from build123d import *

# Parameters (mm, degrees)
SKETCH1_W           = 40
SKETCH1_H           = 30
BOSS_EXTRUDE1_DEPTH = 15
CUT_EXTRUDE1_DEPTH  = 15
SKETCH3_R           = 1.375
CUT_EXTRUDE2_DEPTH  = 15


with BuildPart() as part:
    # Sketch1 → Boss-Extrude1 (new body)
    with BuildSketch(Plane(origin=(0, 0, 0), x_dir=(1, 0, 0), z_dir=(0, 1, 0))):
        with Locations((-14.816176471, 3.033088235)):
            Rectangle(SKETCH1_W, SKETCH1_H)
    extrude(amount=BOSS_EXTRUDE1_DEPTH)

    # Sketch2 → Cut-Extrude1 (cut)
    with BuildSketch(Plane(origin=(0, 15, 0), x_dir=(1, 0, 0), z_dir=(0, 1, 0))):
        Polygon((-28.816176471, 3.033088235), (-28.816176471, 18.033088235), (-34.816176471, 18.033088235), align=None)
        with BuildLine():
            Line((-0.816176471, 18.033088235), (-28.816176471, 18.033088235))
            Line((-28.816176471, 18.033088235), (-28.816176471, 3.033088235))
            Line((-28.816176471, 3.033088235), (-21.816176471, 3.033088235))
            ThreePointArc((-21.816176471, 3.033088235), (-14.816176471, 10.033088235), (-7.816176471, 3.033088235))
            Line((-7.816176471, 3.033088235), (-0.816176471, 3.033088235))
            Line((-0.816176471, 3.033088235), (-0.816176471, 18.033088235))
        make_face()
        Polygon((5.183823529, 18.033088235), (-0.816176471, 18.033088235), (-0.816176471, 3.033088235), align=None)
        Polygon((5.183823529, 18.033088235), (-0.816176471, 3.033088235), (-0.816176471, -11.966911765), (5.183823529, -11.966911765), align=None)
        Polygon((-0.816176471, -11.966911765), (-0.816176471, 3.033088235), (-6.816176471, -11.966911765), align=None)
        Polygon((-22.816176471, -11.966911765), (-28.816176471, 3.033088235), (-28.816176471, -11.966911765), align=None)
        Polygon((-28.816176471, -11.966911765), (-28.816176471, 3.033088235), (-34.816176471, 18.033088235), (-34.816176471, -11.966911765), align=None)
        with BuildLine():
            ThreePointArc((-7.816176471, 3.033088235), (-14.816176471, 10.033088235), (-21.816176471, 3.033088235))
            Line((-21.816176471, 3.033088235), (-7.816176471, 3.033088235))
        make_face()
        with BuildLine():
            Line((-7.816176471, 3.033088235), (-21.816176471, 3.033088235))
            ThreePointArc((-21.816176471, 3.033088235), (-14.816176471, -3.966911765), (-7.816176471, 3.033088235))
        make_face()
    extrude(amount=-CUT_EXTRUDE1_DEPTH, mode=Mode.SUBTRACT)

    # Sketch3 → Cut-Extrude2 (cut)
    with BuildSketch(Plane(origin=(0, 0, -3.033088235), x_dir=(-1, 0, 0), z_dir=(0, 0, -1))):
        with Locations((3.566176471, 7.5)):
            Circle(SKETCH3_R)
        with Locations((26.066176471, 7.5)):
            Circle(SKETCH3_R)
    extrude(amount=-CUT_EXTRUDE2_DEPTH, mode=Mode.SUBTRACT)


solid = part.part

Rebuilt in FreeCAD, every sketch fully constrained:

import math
import FreeCAD as App
import Part
import Sketcher
Q = App.Units.Quantity

doc = App.newDocument("Part")
params = doc.addObject("Spreadsheet::Sheet", "Params")
for row, (alias, value) in enumerate([
    ("sketch1_width", "40 mm"),
    ("sketch1_height", "30 mm"),
    ("pad1_length", "15 mm"),
    ("sketch2_radius", "7 mm"),
    ("sketch2_width", "12 mm"),
    ("sketch2_width2", "7 mm"),
    ("sketch2_width3", "40 mm"),
    ("sketch2_height", "30 mm"),
    ("pocket1_length", "15 mm"),
    ("sketch3_diameter", "2.75 mm"),
    ("pocket2_length", "15 mm"),
], start=1):
    params.set(f"A{row}", alias)
    params.set(f"B{row}", "=" + value)
    params.setAlias(f"B{row}", alias)

body = doc.addObject("PartDesign::Body", "Body")

sketch1 = doc.addObject("Sketcher::SketchObject", "Sketch")
body.addObject(sketch1)
sketch1.AttachmentSupport = (doc.XZ_Plane, [""])
sketch1.MapMode = "FlatFace"
sketch1.addGeometry([
    Part.LineSegment(App.Vector(-35, -18, 0), App.Vector(-35, 12, 0)),
    Part.LineSegment(App.Vector(-35, 12, 0), App.Vector(5, 12, 0)),
    Part.LineSegment(App.Vector(5, 12, 0), App.Vector(5, -18, 0)),
    Part.LineSegment(App.Vector(5, -18, 0), App.Vector(-35, -18, 0)),
], False)
sketch1.addConstraint([
    Sketcher.Constraint("Coincident", 0, 2, 1, 1),
    Sketcher.Constraint("Coincident", 1, 2, 2, 1),
    Sketcher.Constraint("Coincident", 2, 2, 3, 1),
    Sketcher.Constraint("Coincident", 3, 2, 0, 1),
    Sketcher.Constraint("Vertical", 0),
    Sketcher.Constraint("Horizontal", 1),
    Sketcher.Constraint("Vertical", 2),
    Sketcher.Constraint("Horizontal", 3),
    Sketcher.Constraint("DistanceX", 1, 1, 1, 2, Q("40 mm")),
    Sketcher.Constraint("DistanceY", 0, 1, 0, 2, Q("30 mm")),
    Sketcher.Constraint("DistanceY", -1, 1, 0, 2, Q("11.966912 mm")),
    Sketcher.Constraint("DistanceX", 0, 2, -1, 1, Q("34.816176 mm")),
])
sketch1.setExpression("Constraints[8]", "Params.sketch1_width")
sketch1.setExpression("Constraints[9]", "Params.sketch1_height")
pad1 = doc.addObject("PartDesign::Pad", "Pad")
body.addObject(pad1)
pad1.Profile = sketch1
pad1.setExpression("Length", "Params.pad1_length")
pad1.Reversed = True

sketch2 = doc.addObject("Sketcher::SketchObject", "Sketch001")
body.addObject(sketch2)
sketch2.AttachmentSupport = (doc.XZ_Plane, [""])
sketch2.MapMode = "FlatFace"
sketch2.AttachmentOffset = App.Placement(App.Vector(0, 0, -15), App.Rotation())
sketch2.addGeometry([
    Part.LineSegment(App.Vector(-35, 12, 0), App.Vector(-23, 12, 0)),
    Part.LineSegment(App.Vector(-23, 12, 0), App.Vector(-29, -3, 0)),
    Part.LineSegment(App.Vector(-29, -3, 0), App.Vector(-22, -3, 0)),
    Part.ArcOfCircle(Part.Circle(App.Vector(-15, -3, 0), App.Vector(0, 0, 1), 7), math.radians(0), math.radians(180)),
    Part.LineSegment(App.Vector(-8, -3, 0), App.Vector(-1, -3, 0)),
    Part.LineSegment(App.Vector(-1, -3, 0), App.Vector(-7, 12, 0)),
    Part.LineSegment(App.Vector(-7, 12, 0), App.Vector(5, 12, 0)),
    Part.LineSegment(App.Vector(5, 12, 0), App.Vector(5, -18, 0)),
    Part.LineSegment(App.Vector(5, -18, 0), App.Vector(-35, -18, 0)),
    Part.LineSegment(App.Vector(-35, -18, 0), App.Vector(-35, 12, 0)),
], False)
sketch2.addConstraint([
    Sketcher.Constraint("Coincident", 0, 2, 1, 1),
    Sketcher.Constraint("Coincident", 1, 2, 2, 1),
    Sketcher.Constraint("Coincident", 2, 2, 3, 2),
    Sketcher.Constraint("Coincident", 3, 1, 4, 1),
    Sketcher.Constraint("Coincident", 4, 2, 5, 1),
    Sketcher.Constraint("Coincident", 5, 2, 6, 1),
    Sketcher.Constraint("Coincident", 6, 2, 7, 1),
    Sketcher.Constraint("Coincident", 7, 2, 8, 1),
    Sketcher.Constraint("Coincident", 8, 2, 9, 1),
    Sketcher.Constraint("Coincident", 9, 2, 0, 1),
    Sketcher.Constraint("Horizontal", 0),
    Sketcher.Constraint("Horizontal", 2),
    Sketcher.Constraint("Horizontal", 4),
    Sketcher.Constraint("Horizontal", 6),
    Sketcher.Constraint("Vertical", 7),
    Sketcher.Constraint("Horizontal", 8),
    Sketcher.Constraint("Vertical", 9),
    Sketcher.Constraint("Horizontal", 3, 3, 1, 2),
    Sketcher.Constraint("Horizontal", 2, 2, 3, 1),
    Sketcher.Constraint("Horizontal", 0, 2, 5, 2),
    Sketcher.Constraint("Equal", 2, 4),
    Sketcher.Constraint("Equal", 0, 6),
    Sketcher.Constraint("Equal", 1, 5),
    Sketcher.Constraint("Radius", 3, Q("7 mm")),
    Sketcher.Constraint("DistanceX", 0, 1, 0, 2, Q("12 mm")),
    Sketcher.Constraint("DistanceX", 2, 1, 2, 2, Q("7 mm")),
    Sketcher.Constraint("DistanceX", 8, 2, 8, 1, Q("40 mm")),
    Sketcher.Constraint("DistanceY", 7, 2, 7, 1, Q("30 mm")),
    Sketcher.Constraint("DistanceY", 3, 3, 0, 2, Q("15 mm")),
    Sketcher.Constraint("DistanceY", 3, 3, -1, 1, Q("3.033088 mm")),
    Sketcher.Constraint("DistanceX", 3, 3, -1, 1, Q("14.816176 mm")),
])
sketch2.setExpression("Constraints[23]", "Params.sketch2_radius")
sketch2.setExpression("Constraints[24]", "Params.sketch2_width")
sketch2.setExpression("Constraints[25]", "Params.sketch2_width2")
sketch2.setExpression("Constraints[26]", "Params.sketch2_width3")
sketch2.setExpression("Constraints[27]", "Params.sketch2_height")
pocket1 = doc.addObject("PartDesign::Pocket", "Pocket")
body.addObject(pocket1)
pocket1.Profile = sketch2
pocket1.setExpression("Length", "Params.pocket1_length")
pocket1.Reversed = True

sketch3 = doc.addObject("Sketcher::SketchObject", "Sketch002")
body.addObject(sketch3)
sketch3.AttachmentSupport = (doc.XY_Plane, [""])
sketch3.MapMode = "FlatFace"
sketch3.AttachmentOffset = App.Placement(App.Vector(0, 0, -3.033088), App.Rotation())
sketch3.addGeometry([
    Part.Circle(App.Vector(-3.6, 7.5, 0), App.Vector(0, 0, 1), 1.4),
    Part.Circle(App.Vector(-26.1, 7.5, 0), App.Vector(0, 0, 1), 1.4),
], False)
sketch3.addConstraint([
    Sketcher.Constraint("Equal", 0, 1),
    Sketcher.Constraint("Horizontal", 0, 3, 1, 3),
    Sketcher.Constraint("Diameter", 0, Q("2.75 mm")),
    Sketcher.Constraint("DistanceY", -1, 1, 0, 3, Q("7.5 mm")),
    Sketcher.Constraint("DistanceX", 1, 3, 0, 3, Q("22.5 mm")),
    Sketcher.Constraint("DistanceX", 0, 3, -1, 1, Q("3.566176 mm")),
])
sketch3.setExpression("Constraints[2]", "Params.sketch3_diameter")
pocket2 = doc.addObject("PartDesign::Pocket", "Pocket001")
body.addObject(pocket2)
pocket2.Profile = sketch3
pocket2.setExpression("Length", "Params.pocket2_length")
pocket2.Reversed = True

doc.recompute()
